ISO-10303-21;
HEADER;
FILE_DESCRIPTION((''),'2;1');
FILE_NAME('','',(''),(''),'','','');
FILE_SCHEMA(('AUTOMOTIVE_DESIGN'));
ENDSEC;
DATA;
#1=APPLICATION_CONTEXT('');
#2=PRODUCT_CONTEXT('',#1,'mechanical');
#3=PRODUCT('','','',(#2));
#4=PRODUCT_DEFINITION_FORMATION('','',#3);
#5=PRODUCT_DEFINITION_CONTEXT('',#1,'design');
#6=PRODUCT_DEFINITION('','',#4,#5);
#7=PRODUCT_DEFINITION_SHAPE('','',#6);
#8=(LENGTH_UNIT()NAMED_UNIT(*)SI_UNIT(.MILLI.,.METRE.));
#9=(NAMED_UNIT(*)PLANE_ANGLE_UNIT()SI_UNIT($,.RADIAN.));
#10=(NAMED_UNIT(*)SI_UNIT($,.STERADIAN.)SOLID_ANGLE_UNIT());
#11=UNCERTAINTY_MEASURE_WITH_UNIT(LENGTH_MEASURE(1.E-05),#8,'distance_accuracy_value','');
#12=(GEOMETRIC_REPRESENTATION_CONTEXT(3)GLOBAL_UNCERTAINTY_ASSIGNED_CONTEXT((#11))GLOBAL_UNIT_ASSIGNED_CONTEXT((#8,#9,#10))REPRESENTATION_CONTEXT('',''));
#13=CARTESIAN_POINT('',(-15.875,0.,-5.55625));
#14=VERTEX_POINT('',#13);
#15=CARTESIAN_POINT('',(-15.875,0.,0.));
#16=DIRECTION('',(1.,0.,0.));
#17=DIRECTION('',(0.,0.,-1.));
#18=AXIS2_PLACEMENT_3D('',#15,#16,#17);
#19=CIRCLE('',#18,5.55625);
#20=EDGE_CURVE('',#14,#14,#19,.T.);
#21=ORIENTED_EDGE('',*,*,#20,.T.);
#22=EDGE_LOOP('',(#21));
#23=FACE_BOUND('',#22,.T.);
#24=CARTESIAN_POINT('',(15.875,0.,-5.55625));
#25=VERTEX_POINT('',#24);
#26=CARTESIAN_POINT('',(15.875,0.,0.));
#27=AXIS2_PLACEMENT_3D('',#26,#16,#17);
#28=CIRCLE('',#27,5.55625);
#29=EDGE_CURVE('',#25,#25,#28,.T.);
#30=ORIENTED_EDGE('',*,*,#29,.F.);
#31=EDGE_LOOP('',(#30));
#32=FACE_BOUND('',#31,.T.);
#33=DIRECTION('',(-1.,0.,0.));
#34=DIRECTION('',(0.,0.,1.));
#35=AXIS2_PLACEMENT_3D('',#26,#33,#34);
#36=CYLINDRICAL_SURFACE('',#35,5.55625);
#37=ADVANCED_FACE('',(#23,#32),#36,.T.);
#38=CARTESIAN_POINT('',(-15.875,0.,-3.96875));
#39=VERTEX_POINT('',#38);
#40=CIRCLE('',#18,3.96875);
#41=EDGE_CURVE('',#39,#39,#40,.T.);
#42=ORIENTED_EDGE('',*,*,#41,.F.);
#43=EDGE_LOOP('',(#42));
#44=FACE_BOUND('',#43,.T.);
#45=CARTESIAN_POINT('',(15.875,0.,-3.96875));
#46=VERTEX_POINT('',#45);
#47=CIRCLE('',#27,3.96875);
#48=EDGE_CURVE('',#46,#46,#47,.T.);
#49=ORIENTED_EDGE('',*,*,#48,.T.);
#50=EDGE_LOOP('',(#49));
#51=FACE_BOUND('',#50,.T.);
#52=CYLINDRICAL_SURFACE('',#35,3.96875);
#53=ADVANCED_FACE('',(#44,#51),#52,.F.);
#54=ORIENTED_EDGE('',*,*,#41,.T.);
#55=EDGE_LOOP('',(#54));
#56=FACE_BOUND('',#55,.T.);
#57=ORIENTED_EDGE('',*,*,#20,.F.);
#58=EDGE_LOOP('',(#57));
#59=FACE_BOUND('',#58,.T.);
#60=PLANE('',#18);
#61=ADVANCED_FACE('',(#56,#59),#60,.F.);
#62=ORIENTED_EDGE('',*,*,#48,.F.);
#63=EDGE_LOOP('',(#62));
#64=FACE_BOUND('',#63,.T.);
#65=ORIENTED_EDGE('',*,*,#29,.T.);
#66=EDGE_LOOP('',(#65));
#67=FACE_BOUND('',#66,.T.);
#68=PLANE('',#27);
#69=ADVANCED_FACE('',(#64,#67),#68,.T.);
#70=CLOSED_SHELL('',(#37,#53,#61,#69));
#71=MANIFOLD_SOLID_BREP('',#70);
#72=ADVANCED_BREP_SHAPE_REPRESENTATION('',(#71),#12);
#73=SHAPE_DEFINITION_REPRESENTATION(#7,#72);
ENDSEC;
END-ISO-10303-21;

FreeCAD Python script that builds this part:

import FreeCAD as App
import Part
import Sketcher

V = App.Vector
Q = App.Units.Quantity

doc = App.newDocument("Part")
params = doc.addObject("Spreadsheet::Sheet", "Params")
for row, (alias, value) in enumerate([
    ("sketch1_diameter", "0.4375 in"),
    ("sketch1_diameter2", "0.3125 in"),
    ("pad1_length", "1.25 in"),
], start=1):
    params.set(f"A{row}", alias)
    params.set(f"B{row}", "=" + value)
    params.setAlias(f"B{row}", alias)

body = doc.addObject("PartDesign::Body", "Body")

# Sketch on YZ plane
sketch1 = doc.addObject("Sketcher::SketchObject", "Sketch")
body.addObject(sketch1)
sketch1.AttachmentSupport = (doc.YZ_Plane, [""])
sketch1.MapMode = "FlatFace"
sketch1.addGeometry([
    Part.Circle(V(0, 0, 0), V(0, 0, 1), 5.6),
    Part.Circle(V(0, 0, 0), V(0, 0, 1), 4),
], False)
sketch1.addConstraint([
    Sketcher.Constraint("Coincident", 0, 3, -1, 1),
    Sketcher.Constraint("Coincident", 1, 3, -1, 1),
    Sketcher.Constraint("Diameter", 0, Q("0.4375 in")),
    Sketcher.Constraint("Diameter", 1, Q("0.3125 in")),
])
sketch1.setExpression("Constraints[2]", "Params.sketch1_diameter")
sketch1.setExpression("Constraints[3]", "Params.sketch1_diameter2")
pad1 = doc.addObject("PartDesign::Pad", "Pad")
body.addObject(pad1)
pad1.Profile = sketch1
pad1.setExpression("Length", "Params.pad1_length")
pad1.Midplane = True

doc.recompute()
